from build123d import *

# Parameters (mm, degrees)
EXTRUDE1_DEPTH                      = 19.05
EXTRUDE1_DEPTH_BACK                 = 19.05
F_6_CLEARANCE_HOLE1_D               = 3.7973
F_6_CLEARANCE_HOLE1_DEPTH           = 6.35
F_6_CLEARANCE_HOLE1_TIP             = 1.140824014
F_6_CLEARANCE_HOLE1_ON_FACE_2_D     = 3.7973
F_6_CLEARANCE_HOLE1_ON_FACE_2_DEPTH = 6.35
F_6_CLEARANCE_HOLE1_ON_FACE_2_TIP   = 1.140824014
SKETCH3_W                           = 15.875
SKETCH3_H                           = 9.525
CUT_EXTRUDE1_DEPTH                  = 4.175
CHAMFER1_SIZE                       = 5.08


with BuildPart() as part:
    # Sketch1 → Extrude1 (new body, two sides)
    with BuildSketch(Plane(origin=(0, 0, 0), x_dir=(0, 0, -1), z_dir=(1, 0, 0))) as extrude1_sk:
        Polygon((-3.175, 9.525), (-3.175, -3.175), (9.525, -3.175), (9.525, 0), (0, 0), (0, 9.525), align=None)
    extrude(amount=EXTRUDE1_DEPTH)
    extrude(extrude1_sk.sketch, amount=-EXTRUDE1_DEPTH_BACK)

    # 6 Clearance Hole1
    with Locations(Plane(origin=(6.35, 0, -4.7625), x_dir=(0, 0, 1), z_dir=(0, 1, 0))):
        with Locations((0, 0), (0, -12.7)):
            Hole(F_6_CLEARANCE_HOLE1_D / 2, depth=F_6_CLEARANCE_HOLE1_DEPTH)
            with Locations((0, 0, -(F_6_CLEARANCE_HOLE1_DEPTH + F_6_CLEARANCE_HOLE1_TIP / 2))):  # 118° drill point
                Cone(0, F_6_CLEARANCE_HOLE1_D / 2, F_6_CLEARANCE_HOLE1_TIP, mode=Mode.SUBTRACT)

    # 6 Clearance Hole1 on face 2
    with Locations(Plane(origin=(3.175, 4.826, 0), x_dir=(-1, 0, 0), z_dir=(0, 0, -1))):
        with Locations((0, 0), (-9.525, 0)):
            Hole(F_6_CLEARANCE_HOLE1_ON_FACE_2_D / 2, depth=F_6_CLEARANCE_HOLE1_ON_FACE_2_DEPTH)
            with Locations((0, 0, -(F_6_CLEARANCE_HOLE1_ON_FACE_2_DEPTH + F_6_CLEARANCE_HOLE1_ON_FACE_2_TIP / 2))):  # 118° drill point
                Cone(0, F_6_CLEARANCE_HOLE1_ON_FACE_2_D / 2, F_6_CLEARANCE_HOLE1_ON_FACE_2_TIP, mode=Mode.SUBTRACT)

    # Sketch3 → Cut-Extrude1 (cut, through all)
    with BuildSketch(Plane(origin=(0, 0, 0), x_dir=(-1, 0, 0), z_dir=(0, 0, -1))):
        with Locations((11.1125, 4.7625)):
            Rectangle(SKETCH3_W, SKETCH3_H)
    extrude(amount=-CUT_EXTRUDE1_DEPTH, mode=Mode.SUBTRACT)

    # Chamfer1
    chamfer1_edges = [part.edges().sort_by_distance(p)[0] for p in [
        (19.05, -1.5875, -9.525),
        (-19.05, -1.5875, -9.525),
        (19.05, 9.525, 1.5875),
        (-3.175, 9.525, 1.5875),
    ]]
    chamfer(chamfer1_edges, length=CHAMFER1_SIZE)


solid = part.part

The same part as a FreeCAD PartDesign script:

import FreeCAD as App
import Part
import Sketcher
Q = App.Units.Quantity


def edges_at(feature, points):
    """Names of the edges that pass closest to the given points."""
    edges = feature.Shape.Edges
    near = lambda p: min(range(len(edges)), key=lambda i: edges[i].distToShape(Part.Vertex(*p))[0])
    return sorted({f"Edge{near(p) + 1}" for p in points})

doc = App.newDocument("Part")
body = doc.addObject("PartDesign::Body", "Body")

sketch1 = doc.addObject("Sketcher::SketchObject", "Sketch")
body.addObject(sketch1)
sketch1.AttachmentSupport = (doc.YZ_Plane, [""])
sketch1.MapMode = "FlatFace"
sketch1.addGeometry([
    Part.LineSegment(App.Vector(9.525, 3.175, 0), App.Vector(-3.175, 3.175, 0)),
    Part.LineSegment(App.Vector(-3.175, 3.175, 0), App.Vector(-3.175, -9.525, 0)),
    Part.LineSegment(App.Vector(-3.175, -9.525, 0), App.Vector(0, -9.525, 0)),
    Part.LineSegment(App.Vector(0, -9.525, 0), App.Vector(0, 0, 0)),
    Part.LineSegment(App.Vector(0, 0, 0), App.Vector(9.525, 0, 0)),
    Part.LineSegment(App.Vector(9.525, 0, 0), App.Vector(9.525, 3.175, 0)),
], False)
sketch1.addConstraint([
    Sketcher.Constraint("Coincident", 0, 2, 1, 1),
    Sketcher.Constraint("Coincident", 1, 2, 2, 1),
    Sketcher.Constraint("Coincident", 2, 2, 3, 1),
    Sketcher.Constraint("Coincident", 3, 2, 4, 1),
    Sketcher.Constraint("Coincident", 4, 2, 5, 1),
    Sketcher.Constraint("Coincident", 5, 2, 0, 1),
    Sketcher.Constraint("Horizontal", 0),
    Sketcher.Constraint("Vertical", 1),
    Sketcher.Constraint("Horizontal", 2),
    Sketcher.Constraint("Vertical", 3),
    Sketcher.Constraint("Horizontal", 4),
    Sketcher.Constraint("Vertical", 5),
    Sketcher.Constraint("Coincident", 3, 2, -1, 1),
    Sketcher.Constraint("Equal", 0, 1),
    Sketcher.Constraint("Equal", 4, 3),
    Sketcher.Constraint("DistanceX", 0, 2, 0, 1, Q("0.5 in")),
    Sketcher.Constraint("DistanceX", 2, 1, 2, 2, Q("0.125 in")),
])
pad1 = doc.addObject("PartDesign::Pad", "Pad")
body.addObject(pad1)
pad1.Profile = sketch1
pad1.Type = "TwoLengths"
pad1.Length = Q("0.75 in")
pad1.Length2 = Q("0.75 in")

sketch2 = doc.addObject("Sketcher::SketchObject", "Sketch001")
body.addObject(sketch2)
sketch2.AttachmentSupport = (doc.XZ_Plane, [""])
sketch2.MapMode = "FlatFace"
sketch2.addGeometry([
    Part.Circle(App.Vector(6.35, -4.7625, 0), App.Vector(0, 0, 1), 1.89865),
    Part.Circle(App.Vector(-6.35, -4.7625, 0), App.Vector(0, 0, 1), 1.89865),
], False)
sketch2.addConstraint([
    Sketcher.Constraint("Equal", 0, 1),
    Sketcher.Constraint("Symmetric", 0, 3, 1, 3, -2),
    Sketcher.Constraint("Diameter", 0, Q("0.1495 in")),
    Sketcher.Constraint("DistanceX", 1, 3, 0, 3, Q("0.5 in")),
    Sketcher.Constraint("DistanceY", 0, 3, -1, 1, Q("0.1875 in")),
])
doc.recompute()
hole = doc.addObject("PartDesign::Hole", "Hole")
body.addObject(hole)
hole.Profile = sketch2
hole.ThreadType = "None"
hole.Diameter = Q("0.1495 in")
hole.DepthType = "Dimension"
hole.Depth = Q("0.25 in")
hole.DrillPoint = "Angled"
hole.DrillPointAngle = 118
hole.Reversed = True

sketch3 = doc.addObject("Sketcher::SketchObject", "Sketch002")
body.addObject(sketch3)
sketch3.AttachmentSupport = (doc.XY_Plane, [""])
sketch3.MapMode = "FlatFace"
sketch3.addGeometry([
    Part.Circle(App.Vector(3.175, 4.826, 0), App.Vector(0, 0, 1), 1.89865),
    Part.Circle(App.Vector(12.7, 4.826, 0), App.Vector(0, 0, 1), 1.89865),
], False)
sketch3.addConstraint([
    Sketcher.Constraint("Equal", 0, 1),
    Sketcher.Constraint("Horizontal", 0, 3, 1, 3),
    Sketcher.Constraint("Diameter", 0, Q("0.1495 in")),
    Sketcher.Constraint("DistanceX", -1, 1, 1, 3, Q("0.5 in")),
    Sketcher.Constraint("DistanceY", -1, 1, 0, 3, Q("0.19 in")),
    Sketcher.Constraint("DistanceX", -1, 1, 0, 3, Q("0.125 in")),
])
doc.recompute()
hole2 = doc.addObject("PartDesign::Hole", "Hole001")
body.addObject(hole2)
hole2.Profile = sketch3
hole2.ThreadType = "None"
hole2.Diameter = Q("0.1495 in")
hole2.DepthType = "Dimension"
hole2.Depth = Q("0.25 in")
hole2.DrillPoint = "Angled"
hole2.DrillPointAngle = 118
hole2.Reversed = True

sketch4 = doc.addObject("Sketcher::SketchObject", "Sketch003")
body.addObject(sketch4)
sketch4.AttachmentSupport = (doc.XY_Plane, [""])
sketch4.MapMode = "FlatFace"
sketch4.addGeometry([
    Part.LineSegment(App.Vector(-3.175, 9.525, 0), App.Vector(-3.175, 0, 0)),
    Part.LineSegment(App.Vector(-3.175, 0, 0), App.Vector(-19.05, 0, 0)),
    Part.LineSegment(App.Vector(-19.05, 0, 0), App.Vector(-19.05, 9.525, 0)),
    Part.LineSegment(App.Vector(-19.05, 9.525, 0), App.Vector(-3.175, 9.525, 0)),
], False)
sketch4.addConstraint([
    Sketcher.Constraint("Coincident", 0, 2, 1, 1),
    Sketcher.Constraint("Coincident", 1, 2, 2, 1),
    Sketcher.Constraint("Coincident", 2, 2, 3, 1),
    Sketcher.Constraint("Coincident", 3, 2, 0, 1),
    Sketcher.Constraint("Vertical", 0),
    Sketcher.Constraint("Horizontal", 1),
    Sketcher.Constraint("Vertical", 2),
    Sketcher.Constraint("Horizontal", 3),
    Sketcher.Constraint("PointOnObject", 0, 2, -1),
    Sketcher.Constraint("DistanceX", 1, 2, 1, 1, Q("0.625 in")),
    Sketcher.Constraint("DistanceY", 0, 2, 0, 1, Q("0.375 in")),
    Sketcher.Constraint("DistanceX", 1, 2, -1, 1, Q("0.75 in")),
])
pocket1 = doc.addObject("PartDesign::Pocket", "Pocket")
body.addObject(pocket1)
pocket1.Profile = sketch4
pocket1.Type = "ThroughAll"
pocket1.Reversed = True
doc.recompute()

chamfer = doc.addObject("PartDesign::Chamfer", "Chamfer")
body.addObject(chamfer)
chamfer.Base = (pocket1, edges_at(pocket1, [
    (19.05, -1.587, -9.525),
    (-19.05, -1.587, -9.525),
    (19.05, 9.525, 1.587),
    (-3.175, 9.525, 1.587),
]))
chamfer.Size = Q("0.2 in")

doc.recompute()
